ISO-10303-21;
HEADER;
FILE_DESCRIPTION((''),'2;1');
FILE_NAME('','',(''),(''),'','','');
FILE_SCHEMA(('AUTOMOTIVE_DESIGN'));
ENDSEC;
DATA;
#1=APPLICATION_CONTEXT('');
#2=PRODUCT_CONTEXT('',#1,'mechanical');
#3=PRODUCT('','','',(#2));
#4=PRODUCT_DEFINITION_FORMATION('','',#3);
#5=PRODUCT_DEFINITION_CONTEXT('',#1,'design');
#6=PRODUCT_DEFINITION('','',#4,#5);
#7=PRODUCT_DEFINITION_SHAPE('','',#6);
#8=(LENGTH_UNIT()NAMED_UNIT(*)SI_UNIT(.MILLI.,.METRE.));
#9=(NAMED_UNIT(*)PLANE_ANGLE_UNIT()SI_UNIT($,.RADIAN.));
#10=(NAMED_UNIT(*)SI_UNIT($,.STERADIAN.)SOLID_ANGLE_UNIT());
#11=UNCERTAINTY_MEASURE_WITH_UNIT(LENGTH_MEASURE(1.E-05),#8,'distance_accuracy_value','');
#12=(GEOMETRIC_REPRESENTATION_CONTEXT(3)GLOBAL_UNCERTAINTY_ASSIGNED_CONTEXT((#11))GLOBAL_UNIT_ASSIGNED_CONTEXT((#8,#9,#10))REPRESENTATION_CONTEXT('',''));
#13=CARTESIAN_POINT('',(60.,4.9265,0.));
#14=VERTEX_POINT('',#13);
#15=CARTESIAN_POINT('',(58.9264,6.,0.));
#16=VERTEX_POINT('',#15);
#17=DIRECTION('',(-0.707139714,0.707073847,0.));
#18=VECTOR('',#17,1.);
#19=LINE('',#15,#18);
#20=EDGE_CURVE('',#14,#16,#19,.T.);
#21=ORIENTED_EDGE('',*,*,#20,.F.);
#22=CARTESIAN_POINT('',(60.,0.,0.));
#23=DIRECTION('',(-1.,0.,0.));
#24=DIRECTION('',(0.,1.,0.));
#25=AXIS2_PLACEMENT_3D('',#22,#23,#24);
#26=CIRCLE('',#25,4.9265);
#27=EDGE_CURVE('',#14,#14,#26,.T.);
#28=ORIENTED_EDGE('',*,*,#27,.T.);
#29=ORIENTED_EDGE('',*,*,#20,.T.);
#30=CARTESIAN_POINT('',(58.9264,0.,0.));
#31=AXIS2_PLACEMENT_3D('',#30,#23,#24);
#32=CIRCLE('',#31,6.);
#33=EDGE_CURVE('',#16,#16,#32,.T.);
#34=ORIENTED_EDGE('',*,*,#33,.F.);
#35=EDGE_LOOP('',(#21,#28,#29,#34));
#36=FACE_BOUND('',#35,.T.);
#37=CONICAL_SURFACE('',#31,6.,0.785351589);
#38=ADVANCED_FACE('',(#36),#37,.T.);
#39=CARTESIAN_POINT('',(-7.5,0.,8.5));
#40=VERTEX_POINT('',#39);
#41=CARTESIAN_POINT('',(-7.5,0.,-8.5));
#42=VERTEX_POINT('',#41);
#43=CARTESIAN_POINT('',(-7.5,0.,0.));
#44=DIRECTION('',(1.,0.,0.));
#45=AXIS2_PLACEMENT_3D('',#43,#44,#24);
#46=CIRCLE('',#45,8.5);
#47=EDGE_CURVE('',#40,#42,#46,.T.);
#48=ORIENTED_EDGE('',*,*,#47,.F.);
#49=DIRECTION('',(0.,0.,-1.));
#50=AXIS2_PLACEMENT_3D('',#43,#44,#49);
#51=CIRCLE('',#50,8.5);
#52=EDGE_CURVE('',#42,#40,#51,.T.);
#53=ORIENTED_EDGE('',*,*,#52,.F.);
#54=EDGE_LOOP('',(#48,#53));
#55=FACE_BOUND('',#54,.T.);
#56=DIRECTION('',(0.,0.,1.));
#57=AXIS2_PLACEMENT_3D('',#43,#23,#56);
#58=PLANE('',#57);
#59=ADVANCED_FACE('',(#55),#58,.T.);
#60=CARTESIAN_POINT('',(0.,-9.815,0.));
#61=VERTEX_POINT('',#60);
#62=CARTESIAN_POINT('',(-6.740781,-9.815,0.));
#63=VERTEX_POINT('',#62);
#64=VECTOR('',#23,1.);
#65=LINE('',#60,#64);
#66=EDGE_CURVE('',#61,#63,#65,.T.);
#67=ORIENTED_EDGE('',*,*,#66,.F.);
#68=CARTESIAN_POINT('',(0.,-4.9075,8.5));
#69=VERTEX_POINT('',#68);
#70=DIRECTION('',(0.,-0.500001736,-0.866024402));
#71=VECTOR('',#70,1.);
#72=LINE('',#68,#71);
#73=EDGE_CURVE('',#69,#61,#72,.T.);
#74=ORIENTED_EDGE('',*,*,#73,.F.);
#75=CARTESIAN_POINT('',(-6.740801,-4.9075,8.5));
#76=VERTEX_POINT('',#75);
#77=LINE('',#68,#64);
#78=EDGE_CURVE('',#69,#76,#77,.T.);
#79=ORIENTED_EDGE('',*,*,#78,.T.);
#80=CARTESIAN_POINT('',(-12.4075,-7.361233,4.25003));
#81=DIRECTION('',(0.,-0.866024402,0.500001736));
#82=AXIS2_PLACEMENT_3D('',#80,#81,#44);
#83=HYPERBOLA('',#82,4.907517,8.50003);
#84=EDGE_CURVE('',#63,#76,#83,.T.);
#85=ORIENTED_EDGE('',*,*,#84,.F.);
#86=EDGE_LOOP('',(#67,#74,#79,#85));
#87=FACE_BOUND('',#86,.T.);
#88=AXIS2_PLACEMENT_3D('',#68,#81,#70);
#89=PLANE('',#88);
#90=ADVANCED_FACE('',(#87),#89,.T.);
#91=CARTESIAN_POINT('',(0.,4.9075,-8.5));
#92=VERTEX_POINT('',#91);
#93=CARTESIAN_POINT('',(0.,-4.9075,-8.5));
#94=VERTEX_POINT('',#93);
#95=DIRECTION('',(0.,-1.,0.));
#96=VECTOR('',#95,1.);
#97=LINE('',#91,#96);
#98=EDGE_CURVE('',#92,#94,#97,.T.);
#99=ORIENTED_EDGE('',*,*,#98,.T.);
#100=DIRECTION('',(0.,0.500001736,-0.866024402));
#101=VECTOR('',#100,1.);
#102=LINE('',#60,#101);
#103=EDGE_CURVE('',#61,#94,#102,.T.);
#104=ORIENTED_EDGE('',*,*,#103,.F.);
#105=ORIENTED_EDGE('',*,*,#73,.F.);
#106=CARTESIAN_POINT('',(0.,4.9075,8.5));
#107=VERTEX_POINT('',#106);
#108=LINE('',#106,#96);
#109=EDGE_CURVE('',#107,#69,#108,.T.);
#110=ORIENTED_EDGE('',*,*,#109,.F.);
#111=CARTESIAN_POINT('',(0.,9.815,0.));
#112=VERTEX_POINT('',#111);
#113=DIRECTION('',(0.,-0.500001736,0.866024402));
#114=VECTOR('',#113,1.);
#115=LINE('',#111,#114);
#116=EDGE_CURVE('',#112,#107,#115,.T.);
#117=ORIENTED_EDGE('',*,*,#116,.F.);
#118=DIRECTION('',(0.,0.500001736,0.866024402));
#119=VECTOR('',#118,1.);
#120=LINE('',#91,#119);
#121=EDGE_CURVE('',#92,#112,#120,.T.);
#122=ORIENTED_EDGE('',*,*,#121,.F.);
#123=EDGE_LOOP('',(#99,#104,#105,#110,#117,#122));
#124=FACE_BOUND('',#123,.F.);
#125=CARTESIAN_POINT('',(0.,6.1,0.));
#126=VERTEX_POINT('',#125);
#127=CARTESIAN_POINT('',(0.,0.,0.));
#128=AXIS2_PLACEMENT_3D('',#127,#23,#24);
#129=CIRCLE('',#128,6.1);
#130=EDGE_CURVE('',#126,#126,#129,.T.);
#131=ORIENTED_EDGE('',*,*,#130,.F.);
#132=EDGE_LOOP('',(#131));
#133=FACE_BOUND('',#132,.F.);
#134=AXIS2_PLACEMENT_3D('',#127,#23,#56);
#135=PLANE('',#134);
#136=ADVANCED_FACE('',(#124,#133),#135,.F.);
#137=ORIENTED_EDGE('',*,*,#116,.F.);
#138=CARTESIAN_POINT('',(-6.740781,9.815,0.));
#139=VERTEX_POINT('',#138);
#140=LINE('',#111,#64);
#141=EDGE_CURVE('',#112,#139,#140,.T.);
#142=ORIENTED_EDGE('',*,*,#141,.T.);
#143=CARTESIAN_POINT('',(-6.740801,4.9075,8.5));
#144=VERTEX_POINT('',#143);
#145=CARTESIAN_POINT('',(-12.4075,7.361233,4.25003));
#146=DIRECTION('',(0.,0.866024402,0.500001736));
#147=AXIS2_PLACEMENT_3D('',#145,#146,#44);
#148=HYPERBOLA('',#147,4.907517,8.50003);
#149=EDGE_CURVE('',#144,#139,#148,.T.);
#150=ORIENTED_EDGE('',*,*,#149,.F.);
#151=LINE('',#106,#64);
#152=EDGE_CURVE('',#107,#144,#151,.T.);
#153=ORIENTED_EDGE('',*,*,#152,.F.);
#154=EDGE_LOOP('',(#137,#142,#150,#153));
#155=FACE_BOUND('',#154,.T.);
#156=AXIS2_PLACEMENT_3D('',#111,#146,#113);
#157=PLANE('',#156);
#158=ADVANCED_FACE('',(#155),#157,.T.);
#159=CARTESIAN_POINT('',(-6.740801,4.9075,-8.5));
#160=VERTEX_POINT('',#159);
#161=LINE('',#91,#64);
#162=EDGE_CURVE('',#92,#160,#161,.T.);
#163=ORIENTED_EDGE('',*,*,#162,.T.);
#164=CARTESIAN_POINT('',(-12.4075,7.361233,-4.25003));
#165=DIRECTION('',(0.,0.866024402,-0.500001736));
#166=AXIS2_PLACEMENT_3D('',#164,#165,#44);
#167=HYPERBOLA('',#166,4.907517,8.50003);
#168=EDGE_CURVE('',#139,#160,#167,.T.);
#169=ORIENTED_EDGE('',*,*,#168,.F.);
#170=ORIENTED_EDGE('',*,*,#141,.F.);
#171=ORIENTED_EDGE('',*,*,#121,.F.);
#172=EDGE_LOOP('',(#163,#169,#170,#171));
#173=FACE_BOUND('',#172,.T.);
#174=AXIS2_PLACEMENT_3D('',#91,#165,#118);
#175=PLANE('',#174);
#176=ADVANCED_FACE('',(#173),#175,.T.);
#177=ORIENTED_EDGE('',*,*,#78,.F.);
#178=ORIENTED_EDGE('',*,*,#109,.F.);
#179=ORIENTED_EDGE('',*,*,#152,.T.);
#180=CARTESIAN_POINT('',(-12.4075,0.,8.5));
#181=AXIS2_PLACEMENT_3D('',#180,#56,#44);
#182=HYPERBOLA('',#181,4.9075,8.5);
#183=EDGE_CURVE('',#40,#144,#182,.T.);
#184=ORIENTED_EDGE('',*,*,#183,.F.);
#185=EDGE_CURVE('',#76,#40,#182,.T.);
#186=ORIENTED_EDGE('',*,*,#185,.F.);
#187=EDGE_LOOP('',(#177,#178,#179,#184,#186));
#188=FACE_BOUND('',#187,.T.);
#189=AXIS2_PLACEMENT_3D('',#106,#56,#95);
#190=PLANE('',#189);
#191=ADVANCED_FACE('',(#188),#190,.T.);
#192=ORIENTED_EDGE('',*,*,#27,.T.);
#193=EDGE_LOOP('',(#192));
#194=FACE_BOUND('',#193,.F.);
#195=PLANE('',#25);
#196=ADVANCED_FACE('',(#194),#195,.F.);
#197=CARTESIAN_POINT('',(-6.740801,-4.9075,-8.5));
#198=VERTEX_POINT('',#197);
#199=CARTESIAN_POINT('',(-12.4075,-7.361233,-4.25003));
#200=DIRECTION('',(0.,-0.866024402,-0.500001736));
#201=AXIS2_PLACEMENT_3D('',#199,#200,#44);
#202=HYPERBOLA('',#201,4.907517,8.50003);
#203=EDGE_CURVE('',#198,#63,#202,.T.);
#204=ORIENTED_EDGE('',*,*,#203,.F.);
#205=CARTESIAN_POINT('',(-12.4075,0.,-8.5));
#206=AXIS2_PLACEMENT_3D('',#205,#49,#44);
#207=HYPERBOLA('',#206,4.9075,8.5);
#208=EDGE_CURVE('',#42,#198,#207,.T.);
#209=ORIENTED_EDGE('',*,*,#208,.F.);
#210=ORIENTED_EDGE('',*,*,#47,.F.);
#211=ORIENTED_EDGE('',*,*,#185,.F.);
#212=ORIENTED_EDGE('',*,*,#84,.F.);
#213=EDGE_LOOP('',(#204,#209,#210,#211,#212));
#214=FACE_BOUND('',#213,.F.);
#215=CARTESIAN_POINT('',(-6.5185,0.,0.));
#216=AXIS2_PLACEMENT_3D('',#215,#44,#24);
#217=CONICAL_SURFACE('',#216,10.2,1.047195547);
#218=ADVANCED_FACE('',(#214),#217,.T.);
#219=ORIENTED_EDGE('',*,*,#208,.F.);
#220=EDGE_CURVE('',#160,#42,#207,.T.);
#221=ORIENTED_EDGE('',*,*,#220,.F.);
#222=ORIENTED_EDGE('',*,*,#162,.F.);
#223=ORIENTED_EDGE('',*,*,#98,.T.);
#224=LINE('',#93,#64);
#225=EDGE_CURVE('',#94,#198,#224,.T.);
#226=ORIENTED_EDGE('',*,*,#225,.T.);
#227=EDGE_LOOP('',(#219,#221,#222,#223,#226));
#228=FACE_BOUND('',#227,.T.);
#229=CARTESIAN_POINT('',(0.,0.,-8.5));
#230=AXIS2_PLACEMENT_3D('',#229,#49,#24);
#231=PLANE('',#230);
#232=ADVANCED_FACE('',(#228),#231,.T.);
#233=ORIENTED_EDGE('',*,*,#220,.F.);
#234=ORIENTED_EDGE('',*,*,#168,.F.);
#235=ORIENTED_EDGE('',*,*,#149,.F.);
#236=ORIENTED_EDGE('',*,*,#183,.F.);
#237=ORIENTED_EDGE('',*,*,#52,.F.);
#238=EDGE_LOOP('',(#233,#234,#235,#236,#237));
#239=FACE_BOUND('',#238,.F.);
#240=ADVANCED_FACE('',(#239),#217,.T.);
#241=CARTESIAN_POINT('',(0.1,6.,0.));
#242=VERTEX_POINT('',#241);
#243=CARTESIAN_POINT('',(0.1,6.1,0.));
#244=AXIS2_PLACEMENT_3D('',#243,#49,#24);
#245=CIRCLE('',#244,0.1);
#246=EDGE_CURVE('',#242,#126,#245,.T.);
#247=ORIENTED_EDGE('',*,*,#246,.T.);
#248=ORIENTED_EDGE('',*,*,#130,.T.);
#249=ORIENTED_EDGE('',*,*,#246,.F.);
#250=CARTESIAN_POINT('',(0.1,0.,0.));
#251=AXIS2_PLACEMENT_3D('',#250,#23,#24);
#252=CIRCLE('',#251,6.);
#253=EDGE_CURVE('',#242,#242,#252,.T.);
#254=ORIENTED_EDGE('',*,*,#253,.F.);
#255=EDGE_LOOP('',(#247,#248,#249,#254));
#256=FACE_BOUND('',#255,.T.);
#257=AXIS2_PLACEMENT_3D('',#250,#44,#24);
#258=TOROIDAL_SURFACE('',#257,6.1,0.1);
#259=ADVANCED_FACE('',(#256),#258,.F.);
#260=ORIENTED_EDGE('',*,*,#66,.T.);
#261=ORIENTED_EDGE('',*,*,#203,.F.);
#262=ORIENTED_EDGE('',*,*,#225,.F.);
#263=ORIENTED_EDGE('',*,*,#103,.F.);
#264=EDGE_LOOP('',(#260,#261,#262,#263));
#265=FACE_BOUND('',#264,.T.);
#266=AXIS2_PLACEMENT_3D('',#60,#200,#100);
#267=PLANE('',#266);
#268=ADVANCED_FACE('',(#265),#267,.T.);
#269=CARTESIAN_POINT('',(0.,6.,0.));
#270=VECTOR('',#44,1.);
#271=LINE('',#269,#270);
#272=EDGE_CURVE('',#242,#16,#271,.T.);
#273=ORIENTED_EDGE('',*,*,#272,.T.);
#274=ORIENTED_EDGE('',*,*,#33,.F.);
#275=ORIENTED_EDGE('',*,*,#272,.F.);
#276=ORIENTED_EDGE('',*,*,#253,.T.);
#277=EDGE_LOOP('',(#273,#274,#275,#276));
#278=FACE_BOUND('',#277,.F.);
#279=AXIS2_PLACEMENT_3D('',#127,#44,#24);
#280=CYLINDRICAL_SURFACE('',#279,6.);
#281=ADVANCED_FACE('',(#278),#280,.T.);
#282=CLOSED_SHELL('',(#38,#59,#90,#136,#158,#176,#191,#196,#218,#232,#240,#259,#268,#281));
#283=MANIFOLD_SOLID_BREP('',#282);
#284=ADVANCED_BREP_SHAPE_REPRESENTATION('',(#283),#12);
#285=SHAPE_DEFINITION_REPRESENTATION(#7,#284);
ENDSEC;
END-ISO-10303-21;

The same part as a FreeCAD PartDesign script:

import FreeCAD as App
import Part
import Sketcher
from FreeCAD import Vector
Q = App.Units.Quantity


def edges_at(feature, points):
    """Names of the edges that pass closest to the given points."""
    edges = feature.Shape.Edges
    near = lambda p: min(range(len(edges)), key=lambda i: edges[i].distToShape(Part.Vertex(*p))[0])
    return sorted({f"Edge{near(p) + 1}" for p in points})

doc = App.newDocument("Part")
body = doc.addObject("PartDesign::Body", "Body")

sketch1 = body.newObject("Sketcher::SketchObject", "Sketch")
sketch1.AttachmentSupport = (doc.getObject("XY_Plane"), [""])
sketch1.MapMode = "FlatFace"
sketch1.addGeometry([
    Part.LineSegment(Vector(60, 6, 0), Vector(0, 6, 0)),
    Part.LineSegment(Vector(0, 6, 0), Vector(0, 0, 0)),
    Part.LineSegment(Vector(0, 0, 0), Vector(60, 0, 0)),
    Part.LineSegment(Vector(60, 0, 0), Vector(60, 6, 0)),
], False)
sketch1.addConstraint([
    Sketcher.Constraint("Coincident", 0, 2, 1, 1),
    Sketcher.Constraint("Coincident", 1, 2, 2, 1),
    Sketcher.Constraint("Coincident", 2, 2, 3, 1),
    Sketcher.Constraint("Coincident", 3, 2, 0, 1),
    Sketcher.Constraint("Horizontal", 0),
    Sketcher.Constraint("Vertical", 1),
    Sketcher.Constraint("Horizontal", 2),
    Sketcher.Constraint("Vertical", 3),
    Sketcher.Constraint("Coincident", 1, 2, -1, 1),
    Sketcher.Constraint("DistanceX", 0, 2, 0, 1, Q("60 mm")),
    Sketcher.Constraint("DistanceY", 1, 2, 1, 1, Q("6 mm")),
])
revolution = body.newObject("PartDesign::Revolution", "Revolution")
revolution.Profile = sketch1
revolution.ReferenceAxis = (sketch1, ["H_Axis"])
revolution.Angle = 360

sketch2 = body.newObject("Sketcher::SketchObject", "Sketch001")
sketch2.AttachmentSupport = (doc.getObject("YZ_Plane"), [""])
sketch2.MapMode = "FlatFace"
sketch2.addGeometry([
    Part.LineSegment(Vector(5, -8, 0), Vector(-5, -8, 0)),
    Part.LineSegment(Vector(-5, -8, 0), Vector(-10, 0, 0)),
    Part.LineSegment(Vector(-10, 0, 0), Vector(-5, 8, 0)),
    Part.LineSegment(Vector(-5, 8, 0), Vector(5, 8, 0)),
    Part.LineSegment(Vector(5, 8, 0), Vector(10, 0, 0)),
    Part.LineSegment(Vector(10, 0, 0), Vector(5, -8, 0)),
], False)
sketch2.addConstraint([
    Sketcher.Constraint("Coincident", 0, 2, 1, 1),
    Sketcher.Constraint("Coincident", 1, 2, 2, 1),
    Sketcher.Constraint("Coincident", 2, 2, 3, 1),
    Sketcher.Constraint("Coincident", 3, 2, 4, 1),
    Sketcher.Constraint("Coincident", 4, 2, 5, 1),
    Sketcher.Constraint("Coincident", 5, 2, 0, 1),
    Sketcher.Constraint("Horizontal", 0),
    Sketcher.Constraint("Horizontal", 3),
    Sketcher.Constraint("Symmetric", 0, 2, 3, 2, -1, 1),
    Sketcher.Constraint("Symmetric", 1, 2, 4, 2, -1, 1),
    Sketcher.Constraint("PointOnObject", 1, 2, -1),
    Sketcher.Constraint("Parallel", 2, 5),
    Sketcher.Constraint("Vertical", 0, 2, 2, 2),
    Sketcher.Constraint("DistanceY", 0, 2, 2, 2, Q("17 mm")),
    Sketcher.Constraint("Angle", 1, Q("120 deg")),
    Sketcher.Constraint("DistanceX", 0, 2, 0, 1, Q("9.815 mm")),
])
pad1 = body.newObject("PartDesign::Pad", "Pad")
pad1.Profile = sketch2
pad1.Length = 7.5
pad1.Reversed = True

sketch3 = body.newObject("Sketcher::SketchObject", "Sketch002")
sketch3.AttachmentSupport = (doc.getObject("XY_Plane"), [""])
sketch3.MapMode = "FlatFace"
sketch3.addGeometry([
    Part.LineSegment(Vector(-7.5, 8.5, 0), Vector(-6.5, 10.2, 0)),
    Part.LineSegment(Vector(-6.5, 10.2, 0), Vector(-7.5, 10.2, 0)),
    Part.LineSegment(Vector(-7.5, 10.2, 0), Vector(-7.5, 8.5, 0)),
], False)
sketch3.addConstraint([
    Sketcher.Constraint("Coincident", 0, 2, 1, 1),
    Sketcher.Constraint("Coincident", 1, 2, 2, 1),
    Sketcher.Constraint("Coincident", 2, 2, 0, 1),
    Sketcher.Constraint("Horizontal", 1),
    Sketcher.Constraint("Vertical", 2),
    Sketcher.Constraint("DistanceX", 1, 2, -1, 1, Q("7.5 mm")),
    Sketcher.Constraint("Angle", 0, Q("60 deg")),
    Sketcher.Constraint("DistanceY", 2, 2, 2, 1, Q("1.7 mm")),
    Sketcher.Constraint("DistanceY", -1, 1, 0, 2, Q("10.2 mm")),
])
groove = body.newObject("PartDesign::Groove", "Groove")
groove.Profile = sketch3
groove.ReferenceAxis = (sketch3, ["H_Axis"])
groove.Angle = 360
doc.recompute()

chamfer = body.newObject("PartDesign::Chamfer", "Chamfer")
chamfer.Base = (groove, edges_at(groove, [(60, -6, 0)]))
chamfer.ChamferType = "Two distances"
chamfer.Size = 1.0735
chamfer.Size2 = 1.0736
doc.recompute()

fillet = body.newObject("PartDesign::Fillet", "Fillet")
fillet.Base = (chamfer, edges_at(chamfer, [(0, -6, 0)]))
fillet.Radius = 0.1

doc.recompute()
